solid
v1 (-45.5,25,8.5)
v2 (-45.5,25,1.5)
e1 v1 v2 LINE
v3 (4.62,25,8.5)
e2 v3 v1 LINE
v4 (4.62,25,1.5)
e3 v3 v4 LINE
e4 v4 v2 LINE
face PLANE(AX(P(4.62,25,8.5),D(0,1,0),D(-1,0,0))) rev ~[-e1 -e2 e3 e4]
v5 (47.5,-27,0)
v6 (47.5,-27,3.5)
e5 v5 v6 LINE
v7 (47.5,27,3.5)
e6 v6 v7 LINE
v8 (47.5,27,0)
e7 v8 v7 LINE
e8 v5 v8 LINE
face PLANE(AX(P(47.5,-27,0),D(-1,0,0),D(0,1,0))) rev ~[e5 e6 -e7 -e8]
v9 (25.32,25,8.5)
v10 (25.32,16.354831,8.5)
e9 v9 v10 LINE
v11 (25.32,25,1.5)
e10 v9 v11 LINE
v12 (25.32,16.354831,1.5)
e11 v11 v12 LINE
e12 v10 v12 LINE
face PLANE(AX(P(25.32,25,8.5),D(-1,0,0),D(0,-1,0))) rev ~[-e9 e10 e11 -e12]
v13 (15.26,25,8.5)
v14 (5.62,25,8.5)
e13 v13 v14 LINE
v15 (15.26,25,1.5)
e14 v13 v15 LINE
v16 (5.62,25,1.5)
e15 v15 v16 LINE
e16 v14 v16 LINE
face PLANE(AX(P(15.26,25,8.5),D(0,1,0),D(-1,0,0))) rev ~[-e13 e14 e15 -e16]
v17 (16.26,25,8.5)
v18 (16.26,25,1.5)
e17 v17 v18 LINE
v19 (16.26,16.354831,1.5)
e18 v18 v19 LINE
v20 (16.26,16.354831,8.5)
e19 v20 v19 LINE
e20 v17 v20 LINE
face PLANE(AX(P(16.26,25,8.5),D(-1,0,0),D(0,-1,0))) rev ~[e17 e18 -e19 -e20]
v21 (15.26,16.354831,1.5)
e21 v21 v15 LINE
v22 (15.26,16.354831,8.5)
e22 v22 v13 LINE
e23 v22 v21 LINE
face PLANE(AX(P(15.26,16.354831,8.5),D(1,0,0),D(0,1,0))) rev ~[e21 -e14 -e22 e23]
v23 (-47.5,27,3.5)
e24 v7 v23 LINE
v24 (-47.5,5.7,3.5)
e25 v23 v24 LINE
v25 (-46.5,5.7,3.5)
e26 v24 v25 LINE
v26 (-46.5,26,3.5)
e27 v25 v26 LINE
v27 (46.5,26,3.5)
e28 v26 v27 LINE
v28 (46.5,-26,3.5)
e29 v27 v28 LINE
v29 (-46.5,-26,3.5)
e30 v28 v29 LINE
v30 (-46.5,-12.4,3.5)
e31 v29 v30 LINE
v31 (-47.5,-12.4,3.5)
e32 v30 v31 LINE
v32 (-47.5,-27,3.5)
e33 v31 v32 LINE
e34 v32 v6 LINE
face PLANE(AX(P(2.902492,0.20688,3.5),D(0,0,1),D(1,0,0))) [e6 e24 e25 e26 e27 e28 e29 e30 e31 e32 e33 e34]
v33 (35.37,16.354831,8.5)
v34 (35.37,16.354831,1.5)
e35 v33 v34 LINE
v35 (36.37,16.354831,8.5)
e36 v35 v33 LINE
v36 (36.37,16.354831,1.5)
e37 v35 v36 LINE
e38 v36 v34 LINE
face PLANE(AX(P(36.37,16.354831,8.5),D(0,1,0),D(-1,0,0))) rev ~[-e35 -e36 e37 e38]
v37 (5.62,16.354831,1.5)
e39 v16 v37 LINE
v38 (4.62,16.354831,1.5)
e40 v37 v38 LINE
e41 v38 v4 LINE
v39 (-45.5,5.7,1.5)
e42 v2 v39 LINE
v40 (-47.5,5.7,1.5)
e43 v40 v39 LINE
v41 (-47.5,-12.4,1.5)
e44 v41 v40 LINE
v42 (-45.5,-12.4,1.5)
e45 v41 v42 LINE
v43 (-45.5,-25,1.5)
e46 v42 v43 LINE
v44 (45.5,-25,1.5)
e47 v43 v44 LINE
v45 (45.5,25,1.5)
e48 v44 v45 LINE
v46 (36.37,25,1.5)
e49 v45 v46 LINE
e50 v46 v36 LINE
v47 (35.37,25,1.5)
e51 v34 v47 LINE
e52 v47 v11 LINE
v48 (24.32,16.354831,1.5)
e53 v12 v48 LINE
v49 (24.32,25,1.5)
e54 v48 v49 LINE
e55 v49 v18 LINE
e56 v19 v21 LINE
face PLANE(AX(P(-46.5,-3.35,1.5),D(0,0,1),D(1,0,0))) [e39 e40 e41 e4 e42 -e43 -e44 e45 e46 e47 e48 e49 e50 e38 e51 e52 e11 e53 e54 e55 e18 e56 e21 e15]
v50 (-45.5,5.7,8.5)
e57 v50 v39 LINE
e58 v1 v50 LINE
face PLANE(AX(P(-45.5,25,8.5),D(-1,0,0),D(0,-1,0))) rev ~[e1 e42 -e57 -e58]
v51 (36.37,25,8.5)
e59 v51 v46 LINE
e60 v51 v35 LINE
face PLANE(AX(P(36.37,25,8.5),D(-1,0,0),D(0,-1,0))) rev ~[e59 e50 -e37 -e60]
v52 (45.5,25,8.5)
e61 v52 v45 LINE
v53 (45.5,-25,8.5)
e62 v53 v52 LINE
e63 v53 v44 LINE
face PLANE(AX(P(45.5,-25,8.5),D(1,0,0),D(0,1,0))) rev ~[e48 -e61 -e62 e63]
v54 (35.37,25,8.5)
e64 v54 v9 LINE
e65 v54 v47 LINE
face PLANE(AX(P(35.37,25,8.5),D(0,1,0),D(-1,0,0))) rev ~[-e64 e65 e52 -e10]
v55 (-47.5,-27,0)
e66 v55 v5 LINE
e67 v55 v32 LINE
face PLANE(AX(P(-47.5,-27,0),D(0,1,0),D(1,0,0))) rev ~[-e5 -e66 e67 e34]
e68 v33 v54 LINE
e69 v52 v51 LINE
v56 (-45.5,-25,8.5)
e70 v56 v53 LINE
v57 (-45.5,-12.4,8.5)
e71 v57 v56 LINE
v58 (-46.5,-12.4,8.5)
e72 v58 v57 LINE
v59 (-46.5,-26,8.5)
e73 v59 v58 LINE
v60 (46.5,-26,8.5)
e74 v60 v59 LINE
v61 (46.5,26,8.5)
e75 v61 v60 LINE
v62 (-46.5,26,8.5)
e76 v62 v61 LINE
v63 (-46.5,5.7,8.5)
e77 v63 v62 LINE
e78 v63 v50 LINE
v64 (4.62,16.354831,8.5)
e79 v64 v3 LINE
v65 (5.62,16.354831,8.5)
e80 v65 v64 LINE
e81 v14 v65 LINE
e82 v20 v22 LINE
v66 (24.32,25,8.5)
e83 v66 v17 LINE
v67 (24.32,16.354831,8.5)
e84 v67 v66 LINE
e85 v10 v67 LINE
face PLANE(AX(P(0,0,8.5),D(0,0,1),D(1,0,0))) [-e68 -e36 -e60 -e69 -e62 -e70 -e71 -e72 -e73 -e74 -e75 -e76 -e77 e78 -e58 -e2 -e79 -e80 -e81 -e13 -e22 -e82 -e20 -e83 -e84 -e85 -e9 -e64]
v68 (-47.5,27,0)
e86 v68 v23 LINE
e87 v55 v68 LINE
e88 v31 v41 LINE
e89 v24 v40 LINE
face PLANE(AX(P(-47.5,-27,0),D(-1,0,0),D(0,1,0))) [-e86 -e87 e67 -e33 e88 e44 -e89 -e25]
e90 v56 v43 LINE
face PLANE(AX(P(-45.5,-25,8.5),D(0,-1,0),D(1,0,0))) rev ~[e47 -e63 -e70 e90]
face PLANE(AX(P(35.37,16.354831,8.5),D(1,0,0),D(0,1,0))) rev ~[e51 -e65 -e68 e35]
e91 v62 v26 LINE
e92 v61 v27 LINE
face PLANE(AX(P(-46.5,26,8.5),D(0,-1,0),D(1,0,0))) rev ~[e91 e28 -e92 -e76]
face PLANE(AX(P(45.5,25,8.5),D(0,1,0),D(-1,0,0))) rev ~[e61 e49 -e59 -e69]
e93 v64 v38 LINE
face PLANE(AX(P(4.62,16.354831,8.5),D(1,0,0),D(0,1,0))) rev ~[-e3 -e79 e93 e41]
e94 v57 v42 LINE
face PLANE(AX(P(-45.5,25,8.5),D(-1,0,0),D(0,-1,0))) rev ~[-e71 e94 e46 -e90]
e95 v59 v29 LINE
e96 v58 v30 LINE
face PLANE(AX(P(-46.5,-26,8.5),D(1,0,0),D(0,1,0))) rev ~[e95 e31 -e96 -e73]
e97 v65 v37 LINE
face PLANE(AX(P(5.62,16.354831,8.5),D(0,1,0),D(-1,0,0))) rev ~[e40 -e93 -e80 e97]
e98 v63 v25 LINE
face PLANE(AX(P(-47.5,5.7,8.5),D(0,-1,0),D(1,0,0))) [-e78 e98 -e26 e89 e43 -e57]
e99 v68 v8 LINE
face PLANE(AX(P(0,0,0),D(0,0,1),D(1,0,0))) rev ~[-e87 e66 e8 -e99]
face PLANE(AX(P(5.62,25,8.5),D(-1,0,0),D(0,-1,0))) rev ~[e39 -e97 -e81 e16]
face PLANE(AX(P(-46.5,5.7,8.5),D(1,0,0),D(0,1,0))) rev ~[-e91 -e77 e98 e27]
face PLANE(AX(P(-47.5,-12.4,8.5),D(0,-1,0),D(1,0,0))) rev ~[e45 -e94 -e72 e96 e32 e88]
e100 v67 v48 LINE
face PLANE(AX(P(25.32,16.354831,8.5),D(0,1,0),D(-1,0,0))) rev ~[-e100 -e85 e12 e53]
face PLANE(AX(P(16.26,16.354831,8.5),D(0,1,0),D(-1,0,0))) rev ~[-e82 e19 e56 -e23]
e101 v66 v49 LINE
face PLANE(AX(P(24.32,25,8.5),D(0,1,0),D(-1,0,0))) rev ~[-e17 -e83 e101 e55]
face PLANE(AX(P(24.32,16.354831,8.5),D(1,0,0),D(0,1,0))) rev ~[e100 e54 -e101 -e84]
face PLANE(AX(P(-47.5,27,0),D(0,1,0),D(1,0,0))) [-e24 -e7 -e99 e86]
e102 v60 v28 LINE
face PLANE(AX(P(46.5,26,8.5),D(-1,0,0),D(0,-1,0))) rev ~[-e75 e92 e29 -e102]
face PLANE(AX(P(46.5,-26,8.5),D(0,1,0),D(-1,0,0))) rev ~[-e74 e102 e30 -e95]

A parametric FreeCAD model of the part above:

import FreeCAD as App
import Part
import Sketcher

V = App.Vector


def add_polygon(sketch, points):
    """Adds a closed chain of lines whose ends are joined by coincident constraints."""
    first, n = sketch.GeometryCount, len(points)
    for a, b in zip(points, points[1:] + points[:1]):
        sketch.addGeometry(Part.LineSegment(App.Vector(*a, 0), App.Vector(*b, 0)), False)
    for i in range(n):
        sketch.addConstraint(Sketcher.Constraint("Coincident", first + i, 2, first + (i + 1) % n, 1))

doc = App.newDocument("Part")
body = doc.addObject("PartDesign::Body", "Body")

# Sketch on XY plane
sketch1 = body.newObject("Sketcher::SketchObject", "Sketch")
sketch1.AttachmentSupport = (doc.getObject("XY_Plane"), [""])
sketch1.MapMode = "FlatFace"
add_polygon(sketch1, [(-48, 27), (-48, -27), (48, -27), (48, 27)])  # lines 0-3
sketch1.addConstraint(Sketcher.Constraint("Vertical", 0))
sketch1.addConstraint(Sketcher.Constraint("Horizontal", 1))
sketch1.addConstraint(Sketcher.Constraint("Vertical", 2))
sketch1.addConstraint(Sketcher.Constraint("Horizontal", 3))
sketch1.addConstraint(Sketcher.Constraint("Symmetric", 0, 2, 2, 2, -1, 1))
sketch1.addConstraint(Sketcher.Constraint("DistanceX", 1, 1, 1, 2, 95.0))
sketch1.addConstraint(Sketcher.Constraint("DistanceY", 0, 2, 0, 1, 54.0))
pad1 = body.newObject("PartDesign::Pad", "Pad")
pad1.Profile = sketch1
pad1.Length = 8.5

# Sketch on XY plane
sketch2 = body.newObject("Sketcher::SketchObject", "Sketch001")
sketch2.AttachmentSupport = (doc.getObject("XY_Plane"), [""])
sketch2.MapMode = "FlatFace"
sketch2.AttachmentOffset = App.Placement(V(0, 0, 8.5), App.Rotation())
add_polygon(sketch2, [(-45.5, 25), (-45.5, -25), (45.5, -25), (45.5, 25), (36.4, 25), (36.4, 16.4), (35.4, 16.4), (35.4, 25), (25.3, 25), (25.3, 16.4), (24.3, 16.4), (24.3, 25), (16.3, 25), (16.3, 16.4), (15.3, 16.4), (15.3, 25), (5.6, 25), (5.6, 16.4), (4.6, 16.4), (4.6, 25)])  # lines 0-19
sketch2.addConstraint(Sketcher.Constraint("Vertical", 0))
sketch2.addConstraint(Sketcher.Constraint("Horizontal", 1))
sketch2.addConstraint(Sketcher.Constraint("Vertical", 2))
sketch2.addConstraint(Sketcher.Constraint("Horizontal", 3))
sketch2.addConstraint(Sketcher.Constraint("Vertical", 4))
sketch2.addConstraint(Sketcher.Constraint("Horizontal", 5))
sketch2.addConstraint(Sketcher.Constraint("Vertical", 6))
sketch2.addConstraint(Sketcher.Constraint("Horizontal", 7))
sketch2.addConstraint(Sketcher.Constraint("Vertical", 8))
sketch2.addConstraint(Sketcher.Constraint("Horizontal", 9))
sketch2.addConstraint(Sketcher.Constraint("Vertical", 10))
sketch2.addConstraint(Sketcher.Constraint("Horizontal", 11))
sketch2.addConstraint(Sketcher.Constraint("Vertical", 12))
sketch2.addConstraint(Sketcher.Constraint("Horizontal", 13))
sketch2.addConstraint(Sketcher.Constraint("Vertical", 14))
sketch2.addConstraint(Sketcher.Constraint("Horizontal", 15))
sketch2.addConstraint(Sketcher.Constraint("Vertical", 16))
sketch2.addConstraint(Sketcher.Constraint("Horizontal", 17))
sketch2.addConstraint(Sketcher.Constraint("Vertical", 18))
sketch2.addConstraint(Sketcher.Constraint("Horizontal", 19))
sketch2.addConstraint(Sketcher.Constraint("Symmetric", 0, 2, 2, 2, -1, 1))
sketch2.addConstraint(Sketcher.Constraint("Horizontal", 3, 2, 6, 2))
sketch2.addConstraint(Sketcher.Constraint("Horizontal", 5, 2, 8, 2))
sketch2.addConstraint(Sketcher.Constraint("Horizontal", 7, 2, 10, 2))
sketch2.addConstraint(Sketcher.Constraint("Horizontal", 9, 2, 12, 2))
sketch2.addConstraint(Sketcher.Constraint("Horizontal", 11, 2, 14, 2))
sketch2.addConstraint(Sketcher.Constraint("Horizontal", 13, 2, 16, 2))
sketch2.addConstraint(Sketcher.Constraint("Horizontal", 15, 2, 18, 2))
sketch2.addConstraint(Sketcher.Constraint("Equal", 5, 9))
sketch2.addConstraint(Sketcher.Constraint("Equal", 9, 13))
sketch2.addConstraint(Sketcher.Constraint("Equal", 13, 17))
sketch2.addConstraint(Sketcher.Constraint("DistanceX", 1, 1, 1, 2, 91.0))
sketch2.addConstraint(Sketcher.Constraint("DistanceX", 5, 2, 5, 1, 1.0))
sketch2.addConstraint(Sketcher.Constraint("DistanceY", 0, 2, 0, 1, 50.0))
sketch2.addConstraint(Sketcher.Constraint("DistanceX", 3, 2, 3, 1, 9.13))
sketch2.addConstraint(Sketcher.Constraint("DistanceX", 7, 2, 7, 1, 10.05))
sketch2.addConstraint(Sketcher.Constraint("DistanceX", 11, 2, 11, 1, 8.06))
sketch2.addConstraint(Sketcher.Constraint("DistanceX", 15, 2, 15, 1, 9.64))
sketch2.addConstraint(Sketcher.Constraint("DistanceY", 4, 2, 4, 1, 8.645169))
pocket1 = body.newObject("PartDesign::Pocket", "Pocket")
pocket1.Profile = sketch2
pocket1.Length = 7

# Sketch on XY plane
sketch3 = body.newObject("Sketcher::SketchObject", "Sketch002")
sketch3.AttachmentSupport = (doc.getObject("XY_Plane"), [""])
sketch3.MapMode = "FlatFace"
sketch3.AttachmentOffset = App.Placement(V(0, 0, 8.5), App.Rotation())
add_polygon(sketch3, [(-47.5, 5.7), (-47.5, -12.4), (-45.5, -12.4), (-45.5, 5.7)])  # lines 0-3
sketch3.addConstraint(Sketcher.Constraint("Vertical", 0))
sketch3.addConstraint(Sketcher.Constraint("Horizontal", 1))
sketch3.addConstraint(Sketcher.Constraint("Vertical", 2))
sketch3.addConstraint(Sketcher.Constraint("Horizontal", 3))
sketch3.addConstraint(Sketcher.Constraint("DistanceX", 1, 1, 1, 2, 2.0))
sketch3.addConstraint(Sketcher.Constraint("DistanceY", 0, 2, 0, 1, 18.1))
sketch3.addConstraint(Sketcher.Constraint("DistanceX", 0, 2, -1, 1, 47.5))
sketch3.addConstraint(Sketcher.Constraint("DistanceY", 0, 2, -1, 1, 12.4))
pocket2 = body.newObject("PartDesign::Pocket", "Pocket001")
pocket2.Profile = sketch3
pocket2.Length = 7

# Sketch on XY plane
sketch4 = body.newObject("Sketcher::SketchObject", "Sketch003")
sketch4.AttachmentSupport = (doc.getObject("XY_Plane"), [""])
sketch4.MapMode = "FlatFace"
sketch4.AttachmentOffset = App.Placement(V(0, 0, 8.5), App.Rotation())
add_polygon(sketch4, [(46.5, -26), (-46.5, -26), (-46.5, -12.4), (-47.5, -12.4), (-47.5, -27), (47.5, -27), (47.5, 27), (-47.5, 27), (-47.5, 5.7), (-46.5, 5.7), (-46.5, 26), (46.5, 26)])  # lines 0-11
sketch4.addConstraint(Sketcher.Constraint("Horizontal", 0))
sketch4.addConstraint(Sketcher.Constraint("Vertical", 1))
sketch4.addConstraint(Sketcher.Constraint("Horizontal", 2))
sketch4.addConstraint(Sketcher.Constraint("Vertical", 3))
sketch4.addConstraint(Sketcher.Constraint("Horizontal", 4))
sketch4.addConstraint(Sketcher.Constraint("Vertical", 5))
sketch4.addConstraint(Sketcher.Constraint("Horizontal", 6))
sketch4.addConstraint(Sketcher.Constraint("Vertical", 7))
sketch4.addConstraint(Sketcher.Constraint("Horizontal", 8))
sketch4.addConstraint(Sketcher.Constraint("Vertical", 9))
sketch4.addConstraint(Sketcher.Constraint("Horizontal", 10))
sketch4.addConstraint(Sketcher.Constraint("Vertical", 11))
sketch4.addConstraint(Sketcher.Constraint("Symmetric", 3, 2, 5, 2, -1, 1))
sketch4.addConstraint(Sketcher.Constraint("Symmetric", 0, 2, 10, 2, -1, 1))
sketch4.addConstraint(Sketcher.Constraint("Vertical", 3, 2, 6, 2))
sketch4.addConstraint(Sketcher.Constraint("Vertical", 1, 2, 8, 2))
sketch4.addConstraint(Sketcher.Constraint("DistanceX", 0, 2, 0, 1, 93.0))
sketch4.addConstraint(Sketcher.Constraint("DistanceX", 2, 2, 2, 1, 1.0))
sketch4.addConstraint(Sketcher.Constraint("DistanceY", 5, 1, 5, 2, 54.0))
sketch4.addConstraint(Sketcher.Constraint("DistanceY", 11, 2, 11, 1, 52.0))
sketch4.addConstraint(Sketcher.Constraint("DistanceY", 1, 1, 1, 2, 13.6))
sketch4.addConstraint(Sketcher.Constraint("DistanceY", 7, 2, 7, 1, 21.3))
pocket3 = body.newObject("PartDesign::Pocket", "Pocket002")
pocket3.Profile = sketch4
pocket3.Length = 5

doc.recompute()
